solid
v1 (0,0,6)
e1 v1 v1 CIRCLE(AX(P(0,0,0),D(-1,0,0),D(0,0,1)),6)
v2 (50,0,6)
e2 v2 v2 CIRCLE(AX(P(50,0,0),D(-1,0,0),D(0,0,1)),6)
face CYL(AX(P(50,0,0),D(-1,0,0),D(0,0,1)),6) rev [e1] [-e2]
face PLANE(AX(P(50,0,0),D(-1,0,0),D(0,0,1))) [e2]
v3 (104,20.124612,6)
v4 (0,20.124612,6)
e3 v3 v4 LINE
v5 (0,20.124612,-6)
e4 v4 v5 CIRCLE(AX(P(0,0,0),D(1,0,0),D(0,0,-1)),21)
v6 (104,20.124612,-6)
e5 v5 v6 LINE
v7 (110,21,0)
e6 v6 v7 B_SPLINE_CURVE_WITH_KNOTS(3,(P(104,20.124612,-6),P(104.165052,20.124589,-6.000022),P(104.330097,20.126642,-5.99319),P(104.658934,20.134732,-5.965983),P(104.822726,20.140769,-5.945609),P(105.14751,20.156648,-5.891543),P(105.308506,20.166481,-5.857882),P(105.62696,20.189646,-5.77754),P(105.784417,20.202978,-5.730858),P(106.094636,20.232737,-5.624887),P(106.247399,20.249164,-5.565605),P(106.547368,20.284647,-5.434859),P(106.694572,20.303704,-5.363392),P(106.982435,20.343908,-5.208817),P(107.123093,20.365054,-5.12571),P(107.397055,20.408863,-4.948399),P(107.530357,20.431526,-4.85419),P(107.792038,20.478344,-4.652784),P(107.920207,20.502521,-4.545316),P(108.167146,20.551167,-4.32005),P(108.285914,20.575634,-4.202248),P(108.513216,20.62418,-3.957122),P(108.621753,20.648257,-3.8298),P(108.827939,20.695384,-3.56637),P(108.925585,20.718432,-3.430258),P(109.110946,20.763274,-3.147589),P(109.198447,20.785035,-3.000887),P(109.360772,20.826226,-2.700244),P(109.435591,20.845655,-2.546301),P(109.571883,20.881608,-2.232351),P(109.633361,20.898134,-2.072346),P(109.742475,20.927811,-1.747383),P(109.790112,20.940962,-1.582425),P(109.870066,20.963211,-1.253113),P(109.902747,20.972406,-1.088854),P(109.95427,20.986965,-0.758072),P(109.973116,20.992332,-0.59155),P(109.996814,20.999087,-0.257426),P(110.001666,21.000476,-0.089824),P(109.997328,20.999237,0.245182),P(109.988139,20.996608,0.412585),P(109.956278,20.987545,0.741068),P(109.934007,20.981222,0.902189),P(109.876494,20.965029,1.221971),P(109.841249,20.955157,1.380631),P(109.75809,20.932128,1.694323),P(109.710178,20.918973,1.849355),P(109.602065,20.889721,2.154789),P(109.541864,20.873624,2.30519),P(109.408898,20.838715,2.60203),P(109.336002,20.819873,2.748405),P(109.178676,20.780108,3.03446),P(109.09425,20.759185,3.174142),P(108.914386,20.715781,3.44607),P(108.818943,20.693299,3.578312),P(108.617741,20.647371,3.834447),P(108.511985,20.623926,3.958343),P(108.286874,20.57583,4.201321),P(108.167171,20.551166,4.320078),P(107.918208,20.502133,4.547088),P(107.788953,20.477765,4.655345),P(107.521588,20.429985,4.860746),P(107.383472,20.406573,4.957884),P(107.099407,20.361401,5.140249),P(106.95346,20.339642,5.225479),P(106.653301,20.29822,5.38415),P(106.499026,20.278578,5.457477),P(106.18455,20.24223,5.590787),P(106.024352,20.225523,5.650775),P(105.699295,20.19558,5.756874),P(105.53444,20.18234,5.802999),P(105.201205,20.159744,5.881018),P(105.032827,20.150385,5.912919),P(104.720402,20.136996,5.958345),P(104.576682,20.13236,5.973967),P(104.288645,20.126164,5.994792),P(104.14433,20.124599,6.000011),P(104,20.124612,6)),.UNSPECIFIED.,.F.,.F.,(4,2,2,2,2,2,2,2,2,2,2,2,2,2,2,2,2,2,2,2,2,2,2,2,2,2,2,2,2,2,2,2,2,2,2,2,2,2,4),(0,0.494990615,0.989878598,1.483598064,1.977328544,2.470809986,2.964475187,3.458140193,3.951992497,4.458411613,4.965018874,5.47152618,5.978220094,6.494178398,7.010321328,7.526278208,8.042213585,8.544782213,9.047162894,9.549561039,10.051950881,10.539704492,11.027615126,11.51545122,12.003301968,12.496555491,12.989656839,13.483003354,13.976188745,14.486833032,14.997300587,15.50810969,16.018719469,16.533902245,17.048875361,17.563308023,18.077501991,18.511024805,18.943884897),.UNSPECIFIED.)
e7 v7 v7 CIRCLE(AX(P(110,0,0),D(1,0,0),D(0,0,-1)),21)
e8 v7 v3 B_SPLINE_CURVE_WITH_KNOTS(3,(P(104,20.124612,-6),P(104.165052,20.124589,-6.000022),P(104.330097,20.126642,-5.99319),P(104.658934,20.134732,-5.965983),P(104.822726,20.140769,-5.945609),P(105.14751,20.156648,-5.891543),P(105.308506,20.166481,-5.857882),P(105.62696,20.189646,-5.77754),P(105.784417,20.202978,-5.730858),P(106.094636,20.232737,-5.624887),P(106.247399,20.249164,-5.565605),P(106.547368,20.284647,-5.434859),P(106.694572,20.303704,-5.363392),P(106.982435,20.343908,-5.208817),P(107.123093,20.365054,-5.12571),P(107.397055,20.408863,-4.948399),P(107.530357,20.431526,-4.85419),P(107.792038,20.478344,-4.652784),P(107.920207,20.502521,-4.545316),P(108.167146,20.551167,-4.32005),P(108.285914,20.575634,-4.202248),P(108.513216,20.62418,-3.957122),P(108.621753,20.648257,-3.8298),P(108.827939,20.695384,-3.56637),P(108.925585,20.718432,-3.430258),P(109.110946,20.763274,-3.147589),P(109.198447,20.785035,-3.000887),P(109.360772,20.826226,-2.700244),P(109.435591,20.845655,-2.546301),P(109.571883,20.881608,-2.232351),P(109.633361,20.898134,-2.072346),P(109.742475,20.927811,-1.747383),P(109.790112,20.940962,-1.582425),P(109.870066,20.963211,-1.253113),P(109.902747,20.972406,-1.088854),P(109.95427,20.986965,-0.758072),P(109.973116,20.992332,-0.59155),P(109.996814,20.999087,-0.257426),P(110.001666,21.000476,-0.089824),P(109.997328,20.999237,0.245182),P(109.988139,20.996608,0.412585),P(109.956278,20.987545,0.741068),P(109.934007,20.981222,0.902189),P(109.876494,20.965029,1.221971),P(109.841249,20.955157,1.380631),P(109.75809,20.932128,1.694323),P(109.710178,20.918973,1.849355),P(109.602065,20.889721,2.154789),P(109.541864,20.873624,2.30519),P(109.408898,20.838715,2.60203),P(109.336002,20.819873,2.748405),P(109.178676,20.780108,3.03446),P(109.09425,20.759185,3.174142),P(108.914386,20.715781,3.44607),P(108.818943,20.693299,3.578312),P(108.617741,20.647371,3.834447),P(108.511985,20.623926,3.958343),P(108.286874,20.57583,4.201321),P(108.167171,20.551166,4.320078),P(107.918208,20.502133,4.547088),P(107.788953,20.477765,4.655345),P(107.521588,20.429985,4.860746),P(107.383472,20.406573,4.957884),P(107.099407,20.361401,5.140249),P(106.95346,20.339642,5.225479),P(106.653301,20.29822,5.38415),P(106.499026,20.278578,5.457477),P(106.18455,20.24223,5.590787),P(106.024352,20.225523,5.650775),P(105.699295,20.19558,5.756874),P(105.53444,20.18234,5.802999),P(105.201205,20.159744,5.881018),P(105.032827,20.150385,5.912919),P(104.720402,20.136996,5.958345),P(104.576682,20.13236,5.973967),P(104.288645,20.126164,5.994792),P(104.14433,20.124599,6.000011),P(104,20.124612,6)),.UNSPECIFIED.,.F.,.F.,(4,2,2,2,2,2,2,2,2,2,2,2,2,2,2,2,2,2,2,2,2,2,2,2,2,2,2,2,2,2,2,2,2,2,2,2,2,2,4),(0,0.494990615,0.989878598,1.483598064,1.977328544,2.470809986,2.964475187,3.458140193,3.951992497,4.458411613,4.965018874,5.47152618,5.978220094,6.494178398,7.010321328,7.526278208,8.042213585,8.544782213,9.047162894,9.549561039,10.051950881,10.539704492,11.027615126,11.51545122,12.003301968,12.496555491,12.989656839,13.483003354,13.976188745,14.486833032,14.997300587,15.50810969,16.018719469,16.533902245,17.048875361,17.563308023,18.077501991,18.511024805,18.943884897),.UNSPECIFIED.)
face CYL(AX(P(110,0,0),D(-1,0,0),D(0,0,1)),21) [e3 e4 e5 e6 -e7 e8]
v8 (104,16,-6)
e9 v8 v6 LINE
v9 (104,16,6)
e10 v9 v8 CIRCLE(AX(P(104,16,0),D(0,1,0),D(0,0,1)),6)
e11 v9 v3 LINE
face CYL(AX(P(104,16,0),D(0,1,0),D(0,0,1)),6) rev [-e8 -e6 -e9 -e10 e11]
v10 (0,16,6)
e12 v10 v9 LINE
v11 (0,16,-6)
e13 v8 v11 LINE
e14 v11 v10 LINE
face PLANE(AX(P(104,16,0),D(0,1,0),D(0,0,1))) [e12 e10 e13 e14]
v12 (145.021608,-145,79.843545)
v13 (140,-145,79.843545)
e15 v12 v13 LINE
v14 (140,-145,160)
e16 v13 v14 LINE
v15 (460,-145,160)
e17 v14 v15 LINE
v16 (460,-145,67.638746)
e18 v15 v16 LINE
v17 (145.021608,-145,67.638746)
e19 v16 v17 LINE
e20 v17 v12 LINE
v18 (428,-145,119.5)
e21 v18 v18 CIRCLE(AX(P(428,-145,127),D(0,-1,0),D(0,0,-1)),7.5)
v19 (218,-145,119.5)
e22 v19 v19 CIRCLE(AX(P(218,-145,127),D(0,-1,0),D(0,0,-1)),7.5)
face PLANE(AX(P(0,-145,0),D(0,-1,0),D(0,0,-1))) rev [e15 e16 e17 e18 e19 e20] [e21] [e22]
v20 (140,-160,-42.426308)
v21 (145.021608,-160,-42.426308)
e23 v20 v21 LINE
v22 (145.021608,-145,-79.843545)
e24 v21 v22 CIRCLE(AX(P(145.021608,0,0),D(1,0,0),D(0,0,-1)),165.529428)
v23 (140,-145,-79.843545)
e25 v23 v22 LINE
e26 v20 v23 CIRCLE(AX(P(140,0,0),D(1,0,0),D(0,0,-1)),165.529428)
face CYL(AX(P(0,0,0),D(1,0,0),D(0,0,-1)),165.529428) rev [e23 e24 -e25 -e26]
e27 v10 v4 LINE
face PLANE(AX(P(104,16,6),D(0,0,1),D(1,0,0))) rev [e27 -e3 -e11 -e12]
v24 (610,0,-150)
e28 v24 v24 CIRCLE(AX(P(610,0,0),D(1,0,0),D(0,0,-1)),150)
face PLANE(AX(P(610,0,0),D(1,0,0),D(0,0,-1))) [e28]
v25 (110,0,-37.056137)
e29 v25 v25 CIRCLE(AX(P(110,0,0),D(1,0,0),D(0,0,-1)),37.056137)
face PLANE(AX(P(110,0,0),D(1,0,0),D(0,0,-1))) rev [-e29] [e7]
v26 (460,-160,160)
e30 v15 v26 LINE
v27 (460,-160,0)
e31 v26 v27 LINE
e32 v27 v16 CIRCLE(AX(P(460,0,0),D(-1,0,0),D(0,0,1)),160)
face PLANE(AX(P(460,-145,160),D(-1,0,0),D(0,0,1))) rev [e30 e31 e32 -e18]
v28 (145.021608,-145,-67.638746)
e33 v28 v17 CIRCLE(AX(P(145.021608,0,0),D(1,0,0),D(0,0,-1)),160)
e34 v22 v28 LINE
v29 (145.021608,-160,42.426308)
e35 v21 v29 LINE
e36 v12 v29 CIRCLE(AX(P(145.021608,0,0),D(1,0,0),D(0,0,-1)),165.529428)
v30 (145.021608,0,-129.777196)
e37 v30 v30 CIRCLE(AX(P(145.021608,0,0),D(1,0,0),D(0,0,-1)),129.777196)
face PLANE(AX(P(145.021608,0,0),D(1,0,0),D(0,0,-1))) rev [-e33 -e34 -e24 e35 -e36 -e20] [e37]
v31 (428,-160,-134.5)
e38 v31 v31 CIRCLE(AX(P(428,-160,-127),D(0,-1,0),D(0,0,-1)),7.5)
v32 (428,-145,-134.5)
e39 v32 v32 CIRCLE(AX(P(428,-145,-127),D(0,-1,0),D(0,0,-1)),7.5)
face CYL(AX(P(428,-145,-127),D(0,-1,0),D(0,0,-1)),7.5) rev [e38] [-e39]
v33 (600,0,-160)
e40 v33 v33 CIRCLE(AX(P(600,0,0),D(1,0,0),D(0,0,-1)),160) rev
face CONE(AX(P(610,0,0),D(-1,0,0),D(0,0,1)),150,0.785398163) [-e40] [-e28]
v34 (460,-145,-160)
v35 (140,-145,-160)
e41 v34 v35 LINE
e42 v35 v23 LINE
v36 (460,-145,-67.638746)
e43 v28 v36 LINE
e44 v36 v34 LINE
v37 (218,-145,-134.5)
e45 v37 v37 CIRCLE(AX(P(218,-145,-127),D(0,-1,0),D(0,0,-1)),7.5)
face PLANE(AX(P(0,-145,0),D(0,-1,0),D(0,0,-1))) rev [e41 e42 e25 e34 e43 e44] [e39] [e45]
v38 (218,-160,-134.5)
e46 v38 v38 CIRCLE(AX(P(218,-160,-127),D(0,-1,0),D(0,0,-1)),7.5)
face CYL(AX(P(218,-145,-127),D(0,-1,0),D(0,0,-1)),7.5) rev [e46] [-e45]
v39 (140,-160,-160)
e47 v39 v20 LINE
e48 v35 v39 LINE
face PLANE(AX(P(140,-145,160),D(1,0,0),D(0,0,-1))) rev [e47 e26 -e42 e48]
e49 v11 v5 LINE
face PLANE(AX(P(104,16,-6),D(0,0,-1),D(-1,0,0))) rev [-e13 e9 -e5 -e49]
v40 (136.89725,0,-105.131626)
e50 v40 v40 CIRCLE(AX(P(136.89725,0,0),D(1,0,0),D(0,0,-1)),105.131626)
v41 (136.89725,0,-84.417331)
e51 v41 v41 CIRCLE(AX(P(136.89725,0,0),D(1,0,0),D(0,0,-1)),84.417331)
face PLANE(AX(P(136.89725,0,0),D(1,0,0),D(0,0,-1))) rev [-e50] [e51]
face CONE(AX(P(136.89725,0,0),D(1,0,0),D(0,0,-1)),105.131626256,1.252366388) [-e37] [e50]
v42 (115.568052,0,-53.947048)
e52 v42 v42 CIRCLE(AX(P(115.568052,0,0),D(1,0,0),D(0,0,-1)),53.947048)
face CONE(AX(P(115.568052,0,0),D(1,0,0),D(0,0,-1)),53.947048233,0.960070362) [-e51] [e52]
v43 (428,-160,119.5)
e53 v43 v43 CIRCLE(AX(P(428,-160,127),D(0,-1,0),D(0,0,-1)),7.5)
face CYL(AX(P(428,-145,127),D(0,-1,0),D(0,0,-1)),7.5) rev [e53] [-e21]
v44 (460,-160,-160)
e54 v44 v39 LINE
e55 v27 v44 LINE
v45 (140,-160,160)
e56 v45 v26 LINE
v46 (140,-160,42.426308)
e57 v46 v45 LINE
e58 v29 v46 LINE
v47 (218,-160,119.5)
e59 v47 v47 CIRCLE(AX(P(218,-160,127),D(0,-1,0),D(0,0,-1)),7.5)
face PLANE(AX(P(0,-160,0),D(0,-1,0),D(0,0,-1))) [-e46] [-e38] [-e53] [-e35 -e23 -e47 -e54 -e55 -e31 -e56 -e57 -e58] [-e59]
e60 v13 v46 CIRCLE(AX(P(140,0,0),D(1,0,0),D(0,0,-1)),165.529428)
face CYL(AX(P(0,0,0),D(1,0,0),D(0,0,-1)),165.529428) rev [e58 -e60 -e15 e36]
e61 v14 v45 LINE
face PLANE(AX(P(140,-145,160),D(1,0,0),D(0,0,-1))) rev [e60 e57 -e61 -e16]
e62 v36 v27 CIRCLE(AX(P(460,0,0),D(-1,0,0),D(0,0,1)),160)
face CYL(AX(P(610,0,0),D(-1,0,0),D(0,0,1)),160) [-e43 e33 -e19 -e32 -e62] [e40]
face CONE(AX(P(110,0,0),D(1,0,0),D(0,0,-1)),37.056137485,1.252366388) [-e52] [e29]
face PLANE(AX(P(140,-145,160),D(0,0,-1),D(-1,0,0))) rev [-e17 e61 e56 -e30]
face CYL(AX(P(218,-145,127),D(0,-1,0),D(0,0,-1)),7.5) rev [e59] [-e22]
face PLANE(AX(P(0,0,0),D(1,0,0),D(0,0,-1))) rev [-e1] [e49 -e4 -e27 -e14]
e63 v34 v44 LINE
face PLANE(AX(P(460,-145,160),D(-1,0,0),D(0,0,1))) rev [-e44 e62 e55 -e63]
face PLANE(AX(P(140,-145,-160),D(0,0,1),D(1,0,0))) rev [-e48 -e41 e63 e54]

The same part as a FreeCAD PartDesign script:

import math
import FreeCAD as App
import Part
import Sketcher
from FreeCAD import Vector


def edges_at(feature, points):
    """Names of the edges that pass closest to the given points."""
    edges = feature.Shape.Edges
    near = lambda p: min(range(len(edges)), key=lambda i: edges[i].distToShape(Part.Vertex(*p))[0])
    return sorted({f"Edge{near(p) + 1}" for p in points})

doc = App.newDocument("Part")
body = doc.addObject("PartDesign::Body", "Body")

# Sketch on YZ plane
sketch1 = body.newObject("Sketcher::SketchObject", "Sketch")
sketch1.AttachmentSupport = (doc.getObject("YZ_Plane"), [""])
sketch1.MapMode = "FlatFace"
sketch1.addGeometry(Part.Circle(Vector(0, 0, 0), Vector(0, 0, 1), 21), False)
sketch1.addConstraint(Sketcher.Constraint("Coincident", 0, 3, -1, 1))
sketch1.addConstraint(Sketcher.Constraint("Diameter", 0, 42.0))
pad1 = body.newObject("PartDesign::Pad", "Pad")
pad1.Profile = sketch1
pad1.Length = 110

# Sketch on YZ plane
sketch2 = body.newObject("Sketcher::SketchObject", "Sketch001")
sketch2.AttachmentSupport = (doc.getObject("YZ_Plane"), [""])
sketch2.MapMode = "FlatFace"
sketch2.AttachmentOffset = App.Placement(Vector(0, 0, 110), App.Rotation())
sketch2.addGeometry(Part.Circle(Vector(0, 0, 0), Vector(0, 0, 1), 160), False)
sketch2.addConstraint(Sketcher.Constraint("Coincident", 0, 3, -1, 1))
sketch2.addConstraint(Sketcher.Constraint("Diameter", 0, 320.0))
pad2 = body.newObject("PartDesign::Pad", "Pad001")
pad2.Profile = sketch2
pad2.Length = 500

# Sketch on XZ plane
sketch3 = body.newObject("Sketcher::SketchObject", "Sketch002")
sketch3.AttachmentSupport = (doc.getObject("XZ_Plane"), [""])
sketch3.MapMode = "FlatFace"
sketch3.AttachmentOffset = App.Placement(Vector(0, 0, 160), App.Rotation())
sketch3.addGeometry(Part.LineSegment(Vector(140, -160, 0), Vector(140, 160, 0)), False)
sketch3.addGeometry(Part.LineSegment(Vector(140, 160, 0), Vector(460, 160, 0)), False)
sketch3.addGeometry(Part.LineSegment(Vector(460, 160, 0), Vector(460, -160, 0)), False)
sketch3.addGeometry(Part.LineSegment(Vector(460, -160, 0), Vector(140, -160, 0)), False)
sketch3.addConstraint(Sketcher.Constraint("Coincident", 0, 2, 1, 1))
sketch3.addConstraint(Sketcher.Constraint("Coincident", 1, 2, 2, 1))
sketch3.addConstraint(Sketcher.Constraint("Coincident", 2, 2, 3, 1))
sketch3.addConstraint(Sketcher.Constraint("Coincident", 3, 2, 0, 1))
sketch3.addConstraint(Sketcher.Constraint("Vertical", 0))
sketch3.addConstraint(Sketcher.Constraint("Horizontal", 1))
sketch3.addConstraint(Sketcher.Constraint("Vertical", 2))
sketch3.addConstraint(Sketcher.Constraint("Horizontal", 3))
sketch3.addConstraint(Sketcher.Constraint("Equal", 3, 0))
sketch3.addConstraint(Sketcher.Constraint("DistanceX", 1, 1, 1, 2, 320.0))
sketch3.addConstraint(Sketcher.Constraint("DistanceX", -1, 1, 0, 2, 140.0))
sketch3.addConstraint(Sketcher.Constraint("DistanceY", -1, 1, 0, 2, 160.0))
pad3 = body.newObject("PartDesign::Pad", "Pad002")
pad3.Profile = sketch3
pad3.Length = 15
pad3.Reversed = True

# Sketch on XZ plane
sketch4 = body.newObject("Sketcher::SketchObject", "Sketch003")
sketch4.AttachmentSupport = (doc.getObject("XZ_Plane"), [""])
sketch4.MapMode = "FlatFace"
sketch4.AttachmentOffset = App.Placement(Vector(0, 0, 160), App.Rotation())
sketch4.addGeometry(Part.Circle(Vector(428, 127, 0), Vector(0, 0, 1), 8), False)
sketch4.addGeometry(Part.Circle(Vector(218, 127, 0), Vector(0, 0, 1), 8), False)
sketch4.addGeometry(Part.Circle(Vector(218, -127, 0), Vector(0, 0, 1), 8), False)
sketch4.addGeometry(Part.Circle(Vector(428, -127, 0), Vector(0, 0, 1), 8), False)
sketch4.addConstraint(Sketcher.Constraint("Equal", 0, 1))
sketch4.addConstraint(Sketcher.Constraint("Equal", 1, 2))
sketch4.addConstraint(Sketcher.Constraint("Equal", 2, 3))
sketch4.addConstraint(Sketcher.Constraint("Symmetric", 1, 3, 2, 3, -1))
sketch4.addConstraint(Sketcher.Constraint("Symmetric", 0, 3, 3, 3, -1))
sketch4.addConstraint(Sketcher.Constraint("Horizontal", 0, 3, 1, 3))
sketch4.addConstraint(Sketcher.Constraint("Diameter", 0, 15.0))
sketch4.addConstraint(Sketcher.Constraint("DistanceX", -1, 1, 0, 3, 428.0))
sketch4.addConstraint(Sketcher.Constraint("DistanceY", -1, 1, 0, 3, 127.0))
sketch4.addConstraint(Sketcher.Constraint("DistanceX", -1, 1, 1, 3, 218.0))
pocket1 = body.newObject("PartDesign::Pocket", "Pocket")
pocket1.Profile = sketch4
pocket1.Length = 15
doc.recompute()

chamfer = body.newObject("PartDesign::Chamfer", "Chamfer")
chamfer.Base = (pocket1, edges_at(pocket1, [(110, 0, 160), (610, 0, 160)]))
chamfer.Size = 10

# Sketch on XY plane
sketch5 = body.newObject("Sketcher::SketchObject", "Sketch004")
sketch5.AttachmentSupport = (doc.getObject("XY_Plane"), [""])
sketch5.MapMode = "FlatFace"
sketch5.addGeometry(Part.LineSegment(Vector(145, 166, 0), Vector(110, 166, 0)), False)
sketch5.addGeometry(Part.LineSegment(Vector(110, 166, 0), Vector(110, 37, 0)), False)
sketch5.addGeometry(Part.LineSegment(Vector(110, 37, 0), Vector(116, 54, 0)), False)
sketch5.addGeometry(Part.LineSegment(Vector(116, 54, 0), Vector(126, 69, 0)), False)
sketch5.addGeometry(Part.LineSegment(Vector(126, 69, 0), Vector(137, 84, 0)), False)
sketch5.addGeometry(Part.LineSegment(Vector(137, 84, 0), Vector(137, 105, 0)), False)
sketch5.addGeometry(Part.LineSegment(Vector(137, 105, 0), Vector(145, 130, 0)), False)
sketch5.addGeometry(Part.LineSegment(Vector(145, 130, 0), Vector(145, 166, 0)), False)
sketch5.addConstraint(Sketcher.Constraint("Coincident", 0, 2, 1, 1))
sketch5.addConstraint(Sketcher.Constraint("Coincident", 1, 2, 2, 1))
sketch5.addConstraint(Sketcher.Constraint("Coincident", 2, 2, 3, 1))
sketch5.addConstraint(Sketcher.Constraint("Coincident", 3, 2, 4, 1))
sketch5.addConstraint(Sketcher.Constraint("Coincident", 4, 2, 5, 1))
sketch5.addConstraint(Sketcher.Constraint("Coincident", 5, 2, 6, 1))
sketch5.addConstraint(Sketcher.Constraint("Coincident", 6, 2, 7, 1))
sketch5.addConstraint(Sketcher.Constraint("Coincident", 7, 2, 0, 1))
sketch5.addConstraint(Sketcher.Constraint("Horizontal", 0))
sketch5.addConstraint(Sketcher.Constraint("Vertical", 1))
sketch5.addConstraint(Sketcher.Constraint("Vertical", 5))
sketch5.addConstraint(Sketcher.Constraint("Vertical", 7))
sketch5.addConstraint(Sketcher.Constraint("Parallel", 3, 4))
sketch5.addConstraint(Sketcher.Constraint("Parallel", 2, 6))
sketch5.addConstraint(Sketcher.Constraint("DistanceX", -1, 1, 0, 2, 110.0))
sketch5.addConstraint(Sketcher.Constraint("DistanceX", 0, 2, 0, 1, 35.021608))
sketch5.addConstraint(Sketcher.Constraint("DistanceY", 1, 2, 1, 1, 128.473291))
sketch5.addConstraint(Sketcher.Constraint("Distance", 3, 18.743622))
sketch5.addConstraint(Sketcher.Constraint("Distance", 6, 25.950131))
sketch5.addConstraint(Sketcher.Constraint("DistanceY", 5, 1, 5, 2, 20.714296))
sketch5.addConstraint(Sketcher.Constraint("DistanceY", 7, 1, 7, 2, 35.752232))
sketch5.addConstraint(Sketcher.Constraint("DistanceY", -1, 1, 0, 2, 165.529428))
sketch5.addConstraint(Sketcher.Constraint("DistanceY", -1, 1, 2, 2, 53.947048))
sketch5.addConstraint(Sketcher.Constraint("DistanceY", -1, 1, 3, 2, 69.302422))
groove = body.newObject("PartDesign::Groove", "Groove")
groove.Profile = sketch5
groove.ReferenceAxis = (sketch5, ["H_Axis"])
groove.Angle = 360

# Sketch on XZ plane
sketch6 = body.newObject("Sketcher::SketchObject", "Sketch005")
sketch6.AttachmentSupport = (doc.getObject("XZ_Plane"), [""])
sketch6.MapMode = "FlatFace"
sketch6.AttachmentOffset = App.Placement(Vector(0, 0, -21), App.Rotation())
sketch6.addGeometry(Part.LineSegment(Vector(104, -6, 0), Vector(0, -6, 0)), False)
sketch6.addGeometry(Part.LineSegment(Vector(0, -6, 0), Vector(0, 6, 0)), False)
sketch6.addGeometry(Part.LineSegment(Vector(0, 6, 0), Vector(104, 6, 0)), False)
sketch6.addGeometry(Part.ArcOfCircle(Part.Circle(Vector(104, 0, 0), Vector(0, 0, 1), 6), math.radians(-90), math.radians(90)), False)
sketch6.addConstraint(Sketcher.Constraint("Coincident", 0, 2, 1, 1))
sketch6.addConstraint(Sketcher.Constraint("Coincident", 1, 2, 2, 1))
sketch6.addConstraint(Sketcher.Constraint("Tangent", 2, 2, 3, 2))
sketch6.addConstraint(Sketcher.Constraint("Tangent", 3, 1, 0, 1))
sketch6.addConstraint(Sketcher.Constraint("Horizontal", 0))
sketch6.addConstraint(Sketcher.Constraint("Vertical", 1))
sketch6.addConstraint(Sketcher.Constraint("Horizontal", 2))
sketch6.addConstraint(Sketcher.Constraint("Symmetric", 0, 2, 1, 2, -1, 1))
sketch6.addConstraint(Sketcher.Constraint("Radius", 3, 6.0))
sketch6.addConstraint(Sketcher.Constraint("DistanceX", 0, 2, 0, 1, 104.0))
pocket2 = body.newObject("PartDesign::Pocket", "Pocket001")
pocket2.Profile = sketch6
pocket2.Length = 5
pocket2.Reversed = True

# Sketch on YZ plane
sketch7 = body.newObject("Sketcher::SketchObject", "Sketch006")
sketch7.AttachmentSupport = (doc.getObject("YZ_Plane"), [""])
sketch7.MapMode = "FlatFace"
sketch7.addGeometry(Part.Circle(Vector(0, 0, 0), Vector(0, 0, 1), 6), False)
sketch7.addConstraint(Sketcher.Constraint("Coincident", 0, 3, -1, 1))
sketch7.addConstraint(Sketcher.Constraint("Diameter", 0, 12.0))
pocket3 = body.newObject("PartDesign::Pocket", "Pocket002")
pocket3.Profile = sketch7
pocket3.Length = 50
pocket3.Reversed = True

doc.recompute()
